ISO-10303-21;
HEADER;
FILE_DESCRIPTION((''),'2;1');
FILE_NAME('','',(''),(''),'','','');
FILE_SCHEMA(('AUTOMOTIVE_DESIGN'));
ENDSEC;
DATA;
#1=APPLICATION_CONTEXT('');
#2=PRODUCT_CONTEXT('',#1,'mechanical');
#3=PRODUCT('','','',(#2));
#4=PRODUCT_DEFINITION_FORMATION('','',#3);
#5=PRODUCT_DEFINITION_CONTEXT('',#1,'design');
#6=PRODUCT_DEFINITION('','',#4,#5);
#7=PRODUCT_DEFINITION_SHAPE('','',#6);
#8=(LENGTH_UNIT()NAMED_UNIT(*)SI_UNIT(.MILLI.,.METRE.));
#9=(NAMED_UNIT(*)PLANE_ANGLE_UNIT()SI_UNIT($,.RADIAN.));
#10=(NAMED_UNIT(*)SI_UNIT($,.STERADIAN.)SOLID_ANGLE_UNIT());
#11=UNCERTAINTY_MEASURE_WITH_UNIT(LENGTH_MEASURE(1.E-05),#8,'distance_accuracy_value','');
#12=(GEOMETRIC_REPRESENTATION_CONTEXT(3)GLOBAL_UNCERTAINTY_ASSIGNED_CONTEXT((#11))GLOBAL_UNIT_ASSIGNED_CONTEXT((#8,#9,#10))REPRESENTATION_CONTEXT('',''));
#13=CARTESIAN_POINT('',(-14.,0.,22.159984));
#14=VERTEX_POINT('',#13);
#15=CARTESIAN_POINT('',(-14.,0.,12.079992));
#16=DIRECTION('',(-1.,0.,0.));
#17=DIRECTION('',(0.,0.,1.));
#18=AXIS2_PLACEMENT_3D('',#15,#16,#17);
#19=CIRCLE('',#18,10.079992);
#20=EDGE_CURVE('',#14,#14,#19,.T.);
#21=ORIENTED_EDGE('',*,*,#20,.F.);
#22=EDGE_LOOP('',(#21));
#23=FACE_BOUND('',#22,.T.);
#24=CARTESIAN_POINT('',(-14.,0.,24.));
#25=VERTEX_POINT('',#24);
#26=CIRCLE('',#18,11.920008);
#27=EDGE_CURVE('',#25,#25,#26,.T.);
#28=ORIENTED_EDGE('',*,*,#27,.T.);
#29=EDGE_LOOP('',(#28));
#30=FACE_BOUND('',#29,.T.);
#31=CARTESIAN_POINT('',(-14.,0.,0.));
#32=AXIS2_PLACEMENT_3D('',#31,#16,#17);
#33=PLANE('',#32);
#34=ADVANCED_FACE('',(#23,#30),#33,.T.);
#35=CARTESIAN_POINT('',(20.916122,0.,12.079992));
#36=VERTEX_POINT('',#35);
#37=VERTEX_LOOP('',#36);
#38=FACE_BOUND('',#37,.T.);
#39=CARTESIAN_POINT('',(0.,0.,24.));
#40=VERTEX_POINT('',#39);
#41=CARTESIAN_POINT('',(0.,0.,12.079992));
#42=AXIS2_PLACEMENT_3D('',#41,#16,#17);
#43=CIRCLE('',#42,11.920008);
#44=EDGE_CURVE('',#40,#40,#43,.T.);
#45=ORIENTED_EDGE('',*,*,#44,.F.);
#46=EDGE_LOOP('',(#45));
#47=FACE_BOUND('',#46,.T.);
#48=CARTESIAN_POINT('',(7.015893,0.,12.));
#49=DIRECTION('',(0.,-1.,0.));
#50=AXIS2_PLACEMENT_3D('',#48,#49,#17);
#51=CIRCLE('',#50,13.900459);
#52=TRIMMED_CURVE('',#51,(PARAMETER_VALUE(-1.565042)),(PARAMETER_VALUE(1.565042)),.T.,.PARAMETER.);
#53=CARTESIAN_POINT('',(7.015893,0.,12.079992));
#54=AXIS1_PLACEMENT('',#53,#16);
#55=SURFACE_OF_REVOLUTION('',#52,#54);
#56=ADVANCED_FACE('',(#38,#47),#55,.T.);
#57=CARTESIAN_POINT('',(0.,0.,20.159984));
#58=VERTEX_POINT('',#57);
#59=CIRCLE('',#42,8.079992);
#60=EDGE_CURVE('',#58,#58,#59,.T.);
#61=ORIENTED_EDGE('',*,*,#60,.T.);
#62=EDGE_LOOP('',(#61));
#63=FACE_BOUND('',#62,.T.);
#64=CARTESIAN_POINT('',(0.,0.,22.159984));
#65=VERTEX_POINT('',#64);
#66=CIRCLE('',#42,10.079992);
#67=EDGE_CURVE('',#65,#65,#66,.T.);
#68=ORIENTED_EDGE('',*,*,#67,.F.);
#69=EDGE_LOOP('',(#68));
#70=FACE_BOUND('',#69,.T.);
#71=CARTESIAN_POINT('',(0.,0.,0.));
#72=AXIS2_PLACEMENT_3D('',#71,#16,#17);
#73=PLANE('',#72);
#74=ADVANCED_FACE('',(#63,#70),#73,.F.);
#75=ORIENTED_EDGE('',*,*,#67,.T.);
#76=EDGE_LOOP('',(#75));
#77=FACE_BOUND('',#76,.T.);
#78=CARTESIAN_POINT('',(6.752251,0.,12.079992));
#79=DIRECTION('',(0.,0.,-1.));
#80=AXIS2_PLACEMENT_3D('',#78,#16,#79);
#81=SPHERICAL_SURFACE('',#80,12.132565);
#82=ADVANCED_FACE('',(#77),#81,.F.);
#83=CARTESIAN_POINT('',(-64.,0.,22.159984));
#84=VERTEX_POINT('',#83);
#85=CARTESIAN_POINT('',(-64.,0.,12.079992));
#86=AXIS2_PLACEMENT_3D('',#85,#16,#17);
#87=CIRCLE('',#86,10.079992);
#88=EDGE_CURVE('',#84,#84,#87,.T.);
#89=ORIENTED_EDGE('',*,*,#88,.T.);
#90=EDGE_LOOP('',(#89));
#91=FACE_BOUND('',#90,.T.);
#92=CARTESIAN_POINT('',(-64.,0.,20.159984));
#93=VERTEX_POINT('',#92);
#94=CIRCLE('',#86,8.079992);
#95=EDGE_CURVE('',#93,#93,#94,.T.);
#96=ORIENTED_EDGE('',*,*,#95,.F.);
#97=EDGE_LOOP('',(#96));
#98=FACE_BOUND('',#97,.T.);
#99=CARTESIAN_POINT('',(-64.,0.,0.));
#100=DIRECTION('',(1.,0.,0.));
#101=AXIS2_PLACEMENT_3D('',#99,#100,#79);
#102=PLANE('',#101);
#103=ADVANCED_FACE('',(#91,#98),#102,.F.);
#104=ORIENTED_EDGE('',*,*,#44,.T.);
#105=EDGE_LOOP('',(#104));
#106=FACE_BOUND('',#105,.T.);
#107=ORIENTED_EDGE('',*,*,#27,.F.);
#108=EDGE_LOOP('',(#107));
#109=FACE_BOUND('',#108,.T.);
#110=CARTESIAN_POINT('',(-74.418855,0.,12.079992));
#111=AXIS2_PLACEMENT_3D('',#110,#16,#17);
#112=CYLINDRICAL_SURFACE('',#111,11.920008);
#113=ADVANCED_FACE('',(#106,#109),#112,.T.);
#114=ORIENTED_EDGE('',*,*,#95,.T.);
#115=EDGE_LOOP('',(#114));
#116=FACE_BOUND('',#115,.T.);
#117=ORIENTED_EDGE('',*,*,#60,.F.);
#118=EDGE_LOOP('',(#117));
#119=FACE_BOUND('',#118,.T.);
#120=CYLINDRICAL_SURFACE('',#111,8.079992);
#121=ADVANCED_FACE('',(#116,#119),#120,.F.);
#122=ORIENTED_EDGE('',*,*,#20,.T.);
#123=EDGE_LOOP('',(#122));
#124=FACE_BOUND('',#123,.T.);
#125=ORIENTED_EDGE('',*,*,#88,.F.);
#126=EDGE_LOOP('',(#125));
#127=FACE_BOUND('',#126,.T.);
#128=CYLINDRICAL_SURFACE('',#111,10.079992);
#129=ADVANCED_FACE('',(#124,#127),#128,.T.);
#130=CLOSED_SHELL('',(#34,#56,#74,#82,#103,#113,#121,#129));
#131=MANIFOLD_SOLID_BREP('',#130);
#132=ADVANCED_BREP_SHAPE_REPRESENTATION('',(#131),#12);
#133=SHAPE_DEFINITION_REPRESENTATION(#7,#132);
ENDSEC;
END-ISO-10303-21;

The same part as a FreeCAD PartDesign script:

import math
import FreeCAD as App
import Part
import Sketcher
from FreeCAD import Vector

doc = App.newDocument("Part")
params = doc.addObject("Spreadsheet::Sheet", "Params")
for row, (alias, value) in enumerate([
    ("sketch1_width", "50 mm"),
    ("sketch1_width2", "14 mm"),
    ("sketch1_height", "2 mm"),
    ("revolution_angle", "360 deg"),
], start=1):
    params.set(f"A{row}", alias)
    params.set(f"B{row}", "=" + value)
    params.setAlias(f"B{row}", alias)

body = doc.addObject("PartDesign::Body", "Body")

# Sketch on XZ plane
sketch1 = body.newObject("Sketcher::SketchObject", "Sketch")
sketch1.AttachmentSupport = (doc.getObject("XZ_Plane"), [""])
sketch1.MapMode = "FlatFace"
sketch1.addGeometry([
    Part.LineSegment(Vector(-64, 20.2, 0), Vector(-64, 22.2, 0)),  # 0
    Part.LineSegment(Vector(-64, 22.2, 0), Vector(-14, 22.2, 0)),  # 1
    Part.LineSegment(Vector(-14, 22.2, 0), Vector(-14, 24, 0)),  # 2
    Part.LineSegment(Vector(-14, 24, 0), Vector(0, 24, 0)),  # 3
    Part.ArcOfCircle(Part.Circle(Vector(7, 12, 0), Vector(0, 0, 1), 13.9), math.radians(0), math.radians(120)),  # 4
    Part.LineSegment(Vector(20.9, 12.1, 0), Vector(18.9, 12.1, 0)),  # 5
    Part.ArcOfCircle(Part.Circle(Vector(6.8, 12.1, 0), Vector(0, 0, 1), 12.1), math.radians(0), math.radians(124)),  # 6
    Part.LineSegment(Vector(0, 22.2, 0), Vector(0, 20.2, 0)),  # 7
    Part.LineSegment(Vector(0, 20.2, 0), Vector(-64, 20.2, 0)),  # 8
], False)
sketch1.addGeometry(Part.LineSegment(Vector(-64, 12.1, 0), Vector(20.9, 12.1, 0)), True)  # axis
sketch1.addConstraint([
    Sketcher.Constraint("Coincident", 0, 2, 1, 1),
    Sketcher.Constraint("Coincident", 1, 2, 2, 1),
    Sketcher.Constraint("Coincident", 2, 2, 3, 1),
    Sketcher.Constraint("Coincident", 3, 2, 4, 2),
    Sketcher.Constraint("Coincident", 4, 1, 5, 1),
    Sketcher.Constraint("Coincident", 5, 2, 6, 1),
    Sketcher.Constraint("Coincident", 6, 2, 7, 1),
    Sketcher.Constraint("Coincident", 7, 2, 8, 1),
    Sketcher.Constraint("Coincident", 8, 2, 0, 1),
    Sketcher.Constraint("Vertical", 0),
    Sketcher.Constraint("Horizontal", 1),
    Sketcher.Constraint("Vertical", 2),
    Sketcher.Constraint("Horizontal", 3),
    Sketcher.Constraint("Horizontal", 5),
    Sketcher.Constraint("Vertical", 7),
    Sketcher.Constraint("Horizontal", 8),
    Sketcher.Constraint("Horizontal", 9),
    Sketcher.Constraint("Coincident", 9, 2, 4, 1),
    Sketcher.Constraint("PointOnObject", 3, 2, -2),
    Sketcher.Constraint("PointOnObject", 6, 2, -2),
    Sketcher.Constraint("Horizontal", 6, 3, 4, 1),
    Sketcher.Constraint("Horizontal", 1, 2, 6, 2),
    Sketcher.Constraint("Vertical", 8, 2, 9, 1),
    Sketcher.Constraint("DistanceX", 1, 1, 1, 2, 50.0),
    Sketcher.Constraint("DistanceX", 3, 1, 3, 2, 14.0),
    Sketcher.Constraint("DistanceY", 0, 1, 0, 2, 2.0),
    Sketcher.Constraint("DistanceY", -1, 1, 4, 3, 12.0),
    Sketcher.Constraint("DistanceY", -1, 1, 2, 2, 24.0),
    Sketcher.Constraint("Radius", 4, 13.900459),
    Sketcher.Constraint("Radius", 6, 12.132565),
    Sketcher.Constraint("DistanceX", 5, 2, 5, 1, 2.031306),
    Sketcher.Constraint("DistanceY", 2, 1, 2, 2, 1.840016),
])
sketch1.setExpression("Constraints[23]", "Params.sketch1_width")
sketch1.setExpression("Constraints[24]", "Params.sketch1_width2")
sketch1.setExpression("Constraints[25]", "Params.sketch1_height")
revolution = body.newObject("PartDesign::Revolution", "Revolution")
revolution.Profile = sketch1
revolution.ReferenceAxis = (sketch1, ["Axis0"])
revolution.setExpression("Angle", "Params.revolution_angle")

doc.recompute()
